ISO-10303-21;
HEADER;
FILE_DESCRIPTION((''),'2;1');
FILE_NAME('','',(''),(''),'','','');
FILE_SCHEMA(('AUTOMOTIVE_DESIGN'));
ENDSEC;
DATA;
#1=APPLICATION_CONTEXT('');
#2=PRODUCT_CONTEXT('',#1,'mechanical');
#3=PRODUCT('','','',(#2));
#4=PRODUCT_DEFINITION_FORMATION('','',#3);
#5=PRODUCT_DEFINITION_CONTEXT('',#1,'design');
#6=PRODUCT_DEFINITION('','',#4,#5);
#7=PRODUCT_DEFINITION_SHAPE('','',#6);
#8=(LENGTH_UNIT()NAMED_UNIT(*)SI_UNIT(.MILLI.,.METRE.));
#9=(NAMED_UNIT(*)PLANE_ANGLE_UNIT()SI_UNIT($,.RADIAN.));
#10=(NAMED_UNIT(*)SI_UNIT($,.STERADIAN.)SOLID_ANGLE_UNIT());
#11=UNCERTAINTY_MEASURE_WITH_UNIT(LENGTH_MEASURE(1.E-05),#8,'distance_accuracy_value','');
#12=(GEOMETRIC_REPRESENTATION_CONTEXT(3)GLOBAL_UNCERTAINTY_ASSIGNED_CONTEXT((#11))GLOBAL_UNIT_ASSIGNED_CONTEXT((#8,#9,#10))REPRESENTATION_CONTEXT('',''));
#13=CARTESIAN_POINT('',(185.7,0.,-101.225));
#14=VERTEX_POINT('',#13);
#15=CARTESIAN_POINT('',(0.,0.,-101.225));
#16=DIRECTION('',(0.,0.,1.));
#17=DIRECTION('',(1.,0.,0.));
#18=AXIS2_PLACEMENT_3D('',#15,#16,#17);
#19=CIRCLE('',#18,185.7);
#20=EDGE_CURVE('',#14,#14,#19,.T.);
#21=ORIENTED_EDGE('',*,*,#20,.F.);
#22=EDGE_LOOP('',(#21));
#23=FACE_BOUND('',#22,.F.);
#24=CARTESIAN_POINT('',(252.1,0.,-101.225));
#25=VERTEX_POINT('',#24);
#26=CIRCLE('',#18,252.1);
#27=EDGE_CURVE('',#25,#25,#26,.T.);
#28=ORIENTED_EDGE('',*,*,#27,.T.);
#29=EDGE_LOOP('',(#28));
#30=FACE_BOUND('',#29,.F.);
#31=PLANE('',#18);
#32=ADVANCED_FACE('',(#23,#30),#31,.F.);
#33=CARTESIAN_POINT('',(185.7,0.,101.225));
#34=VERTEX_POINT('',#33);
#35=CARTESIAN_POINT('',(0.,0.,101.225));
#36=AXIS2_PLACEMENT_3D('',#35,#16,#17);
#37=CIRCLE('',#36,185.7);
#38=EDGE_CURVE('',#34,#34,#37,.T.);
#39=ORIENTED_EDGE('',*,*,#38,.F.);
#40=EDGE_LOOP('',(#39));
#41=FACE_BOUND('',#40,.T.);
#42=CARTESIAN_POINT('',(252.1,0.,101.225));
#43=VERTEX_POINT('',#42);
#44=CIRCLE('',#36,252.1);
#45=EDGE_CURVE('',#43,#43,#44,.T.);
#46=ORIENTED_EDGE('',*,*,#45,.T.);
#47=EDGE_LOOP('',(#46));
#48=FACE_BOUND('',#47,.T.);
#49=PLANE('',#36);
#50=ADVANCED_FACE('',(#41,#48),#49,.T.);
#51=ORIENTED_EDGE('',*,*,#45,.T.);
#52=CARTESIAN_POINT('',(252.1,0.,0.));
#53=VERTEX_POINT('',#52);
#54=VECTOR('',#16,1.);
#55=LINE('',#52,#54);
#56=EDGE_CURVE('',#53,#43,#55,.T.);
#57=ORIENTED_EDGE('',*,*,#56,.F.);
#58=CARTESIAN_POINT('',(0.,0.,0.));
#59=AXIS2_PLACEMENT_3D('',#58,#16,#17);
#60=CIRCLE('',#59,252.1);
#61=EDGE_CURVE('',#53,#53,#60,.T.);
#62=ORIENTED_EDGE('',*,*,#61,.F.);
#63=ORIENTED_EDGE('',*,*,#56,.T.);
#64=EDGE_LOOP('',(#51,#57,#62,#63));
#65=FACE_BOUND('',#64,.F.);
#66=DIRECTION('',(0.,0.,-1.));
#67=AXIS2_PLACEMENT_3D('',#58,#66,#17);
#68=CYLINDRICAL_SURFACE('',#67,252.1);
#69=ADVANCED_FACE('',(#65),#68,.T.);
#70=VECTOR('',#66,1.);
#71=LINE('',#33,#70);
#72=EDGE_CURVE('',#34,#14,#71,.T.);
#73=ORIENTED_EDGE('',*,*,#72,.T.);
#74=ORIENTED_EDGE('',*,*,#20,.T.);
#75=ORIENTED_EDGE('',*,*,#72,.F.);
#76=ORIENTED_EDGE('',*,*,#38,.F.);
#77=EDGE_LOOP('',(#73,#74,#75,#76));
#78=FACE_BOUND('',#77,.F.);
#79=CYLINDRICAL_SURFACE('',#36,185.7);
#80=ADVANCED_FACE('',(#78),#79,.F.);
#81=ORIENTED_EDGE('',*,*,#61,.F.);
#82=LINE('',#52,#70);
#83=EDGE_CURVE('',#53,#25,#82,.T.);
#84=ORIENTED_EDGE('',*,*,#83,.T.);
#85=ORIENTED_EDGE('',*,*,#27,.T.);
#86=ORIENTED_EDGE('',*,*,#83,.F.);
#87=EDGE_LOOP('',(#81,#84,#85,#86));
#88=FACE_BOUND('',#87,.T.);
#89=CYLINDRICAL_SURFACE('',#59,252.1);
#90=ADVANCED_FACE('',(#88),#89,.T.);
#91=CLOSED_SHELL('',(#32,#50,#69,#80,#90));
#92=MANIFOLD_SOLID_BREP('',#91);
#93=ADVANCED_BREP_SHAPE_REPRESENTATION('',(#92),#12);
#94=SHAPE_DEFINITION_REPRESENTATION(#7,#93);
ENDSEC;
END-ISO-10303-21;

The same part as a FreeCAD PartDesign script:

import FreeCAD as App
import Part
import Sketcher

V = App.Vector

doc = App.newDocument("Part")
body = doc.addObject("PartDesign::Body", "Body")

sketch1 = body.newObject("Sketcher::SketchObject", "Sketch")
sketch1.AttachmentSupport = (doc.getObject("XY_Plane"), [""])
sketch1.MapMode = "FlatFace"
sketch1.addGeometry(Part.Circle(V(0, 0, 0), V(0, 0, 1), 252), False)
sketch1.addConstraint([
    Sketcher.Constraint("Coincident", 0, 3, -1, 1),
    Sketcher.Constraint("Diameter", 0, 504.2),
])
pad1 = body.newObject("PartDesign::Pad", "Pad")
pad1.Profile = sketch1
pad1.Length = 202.45
pad1.Midplane = True

sketch2 = body.newObject("Sketcher::SketchObject", "Sketch001")
sketch2.AttachmentSupport = (doc.getObject("XY_Plane"), [""])
sketch2.MapMode = "FlatFace"
sketch2.AttachmentOffset = App.Placement(V(0, 0, 101.225), App.Rotation())
sketch2.addGeometry(Part.Circle(V(0, 0, 0), V(0, 0, 1), 186), False)
sketch2.addConstraint([
    Sketcher.Constraint("Coincident", 0, 3, -1, 1),
    Sketcher.Constraint("Diameter", 0, 371.4),
])
pocket1 = body.newObject("PartDesign::Pocket", "Pocket")
pocket1.Profile = sketch2
pocket1.Type = "ThroughAll"

doc.recompute()
